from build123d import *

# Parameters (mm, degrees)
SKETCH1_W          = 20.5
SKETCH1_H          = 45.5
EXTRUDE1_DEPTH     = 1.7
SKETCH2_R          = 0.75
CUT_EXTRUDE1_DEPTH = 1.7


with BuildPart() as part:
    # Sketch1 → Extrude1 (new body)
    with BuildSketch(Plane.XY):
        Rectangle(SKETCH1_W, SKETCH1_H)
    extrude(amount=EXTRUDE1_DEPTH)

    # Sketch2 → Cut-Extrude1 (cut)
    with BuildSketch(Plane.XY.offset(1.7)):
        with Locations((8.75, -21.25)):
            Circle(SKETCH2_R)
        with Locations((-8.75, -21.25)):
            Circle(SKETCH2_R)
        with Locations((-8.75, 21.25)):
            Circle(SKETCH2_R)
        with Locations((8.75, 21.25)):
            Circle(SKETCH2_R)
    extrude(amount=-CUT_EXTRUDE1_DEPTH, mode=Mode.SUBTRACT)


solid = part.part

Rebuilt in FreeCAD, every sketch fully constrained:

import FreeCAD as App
import Part
import Sketcher

V = App.Vector

doc = App.newDocument("Part")
body = doc.addObject("PartDesign::Body", "Body")

sketch1 = body.newObject("Sketcher::SketchObject", "Sketch")
sketch1.AttachmentSupport = (doc.getObject("XY_Plane"), [""])
sketch1.MapMode = "FlatFace"
sketch1.addGeometry([
    Part.LineSegment(V(-10, 23, 0), V(-10, -23, 0)),
    Part.LineSegment(V(-10, -23, 0), V(10, -23, 0)),
    Part.LineSegment(V(10, -23, 0), V(10, 23, 0)),
    Part.LineSegment(V(10, 23, 0), V(-10, 23, 0)),
], False)
sketch1.addConstraint([
    Sketcher.Constraint("Coincident", 0, 2, 1, 1),
    Sketcher.Constraint("Coincident", 1, 2, 2, 1),
    Sketcher.Constraint("Coincident", 2, 2, 3, 1),
    Sketcher.Constraint("Coincident", 3, 2, 0, 1),
    Sketcher.Constraint("Vertical", 0),
    Sketcher.Constraint("Horizontal", 1),
    Sketcher.Constraint("Vertical", 2),
    Sketcher.Constraint("Horizontal", 3),
    Sketcher.Constraint("Symmetric", 0, 2, 2, 2, -1, 1),
    Sketcher.Constraint("DistanceX", 1, 1, 1, 2, 20.5),
    Sketcher.Constraint("DistanceY", 0, 2, 0, 1, 45.5),
])
pad1 = body.newObject("PartDesign::Pad", "Pad")
pad1.Profile = sketch1
pad1.Length = 1.7

sketch2 = body.newObject("Sketcher::SketchObject", "Sketch001")
sketch2.AttachmentSupport = (doc.getObject("XY_Plane"), [""])
sketch2.MapMode = "FlatFace"
sketch2.AttachmentOffset = App.Placement(V(0, 0, 1.7), App.Rotation())
sketch2.addGeometry([
    Part.Circle(V(8.8, -21.2, 0), V(0, 0, 1), 0.8),
    Part.Circle(V(-8.8, -21.2, 0), V(0, 0, 1), 0.8),
    Part.Circle(V(-8.8, 21.2, 0), V(0, 0, 1), 0.8),
    Part.Circle(V(8.8, 21.2, 0), V(0, 0, 1), 0.8),
], False)
sketch2.addConstraint([
    Sketcher.Constraint("Equal", 0, 1),
    Sketcher.Constraint("Equal", 1, 2),
    Sketcher.Constraint("Equal", 2, 3),
    Sketcher.Constraint("Symmetric", 0, 3, 2, 3, -1, 1),
    Sketcher.Constraint("Symmetric", 1, 3, 3, 3, -1, 1),
    Sketcher.Constraint("Symmetric", 0, 3, 1, 3, -2),
    Sketcher.Constraint("Diameter", 0, 1.5),
    Sketcher.Constraint("DistanceX", 1, 3, 0, 3, 17.5),
    Sketcher.Constraint("DistanceY", 1, 3, 2, 3, 42.5),
])
pocket1 = body.newObject("PartDesign::Pocket", "Pocket")
pocket1.Profile = sketch2
pocket1.Length = 1.7

doc.recompute()
